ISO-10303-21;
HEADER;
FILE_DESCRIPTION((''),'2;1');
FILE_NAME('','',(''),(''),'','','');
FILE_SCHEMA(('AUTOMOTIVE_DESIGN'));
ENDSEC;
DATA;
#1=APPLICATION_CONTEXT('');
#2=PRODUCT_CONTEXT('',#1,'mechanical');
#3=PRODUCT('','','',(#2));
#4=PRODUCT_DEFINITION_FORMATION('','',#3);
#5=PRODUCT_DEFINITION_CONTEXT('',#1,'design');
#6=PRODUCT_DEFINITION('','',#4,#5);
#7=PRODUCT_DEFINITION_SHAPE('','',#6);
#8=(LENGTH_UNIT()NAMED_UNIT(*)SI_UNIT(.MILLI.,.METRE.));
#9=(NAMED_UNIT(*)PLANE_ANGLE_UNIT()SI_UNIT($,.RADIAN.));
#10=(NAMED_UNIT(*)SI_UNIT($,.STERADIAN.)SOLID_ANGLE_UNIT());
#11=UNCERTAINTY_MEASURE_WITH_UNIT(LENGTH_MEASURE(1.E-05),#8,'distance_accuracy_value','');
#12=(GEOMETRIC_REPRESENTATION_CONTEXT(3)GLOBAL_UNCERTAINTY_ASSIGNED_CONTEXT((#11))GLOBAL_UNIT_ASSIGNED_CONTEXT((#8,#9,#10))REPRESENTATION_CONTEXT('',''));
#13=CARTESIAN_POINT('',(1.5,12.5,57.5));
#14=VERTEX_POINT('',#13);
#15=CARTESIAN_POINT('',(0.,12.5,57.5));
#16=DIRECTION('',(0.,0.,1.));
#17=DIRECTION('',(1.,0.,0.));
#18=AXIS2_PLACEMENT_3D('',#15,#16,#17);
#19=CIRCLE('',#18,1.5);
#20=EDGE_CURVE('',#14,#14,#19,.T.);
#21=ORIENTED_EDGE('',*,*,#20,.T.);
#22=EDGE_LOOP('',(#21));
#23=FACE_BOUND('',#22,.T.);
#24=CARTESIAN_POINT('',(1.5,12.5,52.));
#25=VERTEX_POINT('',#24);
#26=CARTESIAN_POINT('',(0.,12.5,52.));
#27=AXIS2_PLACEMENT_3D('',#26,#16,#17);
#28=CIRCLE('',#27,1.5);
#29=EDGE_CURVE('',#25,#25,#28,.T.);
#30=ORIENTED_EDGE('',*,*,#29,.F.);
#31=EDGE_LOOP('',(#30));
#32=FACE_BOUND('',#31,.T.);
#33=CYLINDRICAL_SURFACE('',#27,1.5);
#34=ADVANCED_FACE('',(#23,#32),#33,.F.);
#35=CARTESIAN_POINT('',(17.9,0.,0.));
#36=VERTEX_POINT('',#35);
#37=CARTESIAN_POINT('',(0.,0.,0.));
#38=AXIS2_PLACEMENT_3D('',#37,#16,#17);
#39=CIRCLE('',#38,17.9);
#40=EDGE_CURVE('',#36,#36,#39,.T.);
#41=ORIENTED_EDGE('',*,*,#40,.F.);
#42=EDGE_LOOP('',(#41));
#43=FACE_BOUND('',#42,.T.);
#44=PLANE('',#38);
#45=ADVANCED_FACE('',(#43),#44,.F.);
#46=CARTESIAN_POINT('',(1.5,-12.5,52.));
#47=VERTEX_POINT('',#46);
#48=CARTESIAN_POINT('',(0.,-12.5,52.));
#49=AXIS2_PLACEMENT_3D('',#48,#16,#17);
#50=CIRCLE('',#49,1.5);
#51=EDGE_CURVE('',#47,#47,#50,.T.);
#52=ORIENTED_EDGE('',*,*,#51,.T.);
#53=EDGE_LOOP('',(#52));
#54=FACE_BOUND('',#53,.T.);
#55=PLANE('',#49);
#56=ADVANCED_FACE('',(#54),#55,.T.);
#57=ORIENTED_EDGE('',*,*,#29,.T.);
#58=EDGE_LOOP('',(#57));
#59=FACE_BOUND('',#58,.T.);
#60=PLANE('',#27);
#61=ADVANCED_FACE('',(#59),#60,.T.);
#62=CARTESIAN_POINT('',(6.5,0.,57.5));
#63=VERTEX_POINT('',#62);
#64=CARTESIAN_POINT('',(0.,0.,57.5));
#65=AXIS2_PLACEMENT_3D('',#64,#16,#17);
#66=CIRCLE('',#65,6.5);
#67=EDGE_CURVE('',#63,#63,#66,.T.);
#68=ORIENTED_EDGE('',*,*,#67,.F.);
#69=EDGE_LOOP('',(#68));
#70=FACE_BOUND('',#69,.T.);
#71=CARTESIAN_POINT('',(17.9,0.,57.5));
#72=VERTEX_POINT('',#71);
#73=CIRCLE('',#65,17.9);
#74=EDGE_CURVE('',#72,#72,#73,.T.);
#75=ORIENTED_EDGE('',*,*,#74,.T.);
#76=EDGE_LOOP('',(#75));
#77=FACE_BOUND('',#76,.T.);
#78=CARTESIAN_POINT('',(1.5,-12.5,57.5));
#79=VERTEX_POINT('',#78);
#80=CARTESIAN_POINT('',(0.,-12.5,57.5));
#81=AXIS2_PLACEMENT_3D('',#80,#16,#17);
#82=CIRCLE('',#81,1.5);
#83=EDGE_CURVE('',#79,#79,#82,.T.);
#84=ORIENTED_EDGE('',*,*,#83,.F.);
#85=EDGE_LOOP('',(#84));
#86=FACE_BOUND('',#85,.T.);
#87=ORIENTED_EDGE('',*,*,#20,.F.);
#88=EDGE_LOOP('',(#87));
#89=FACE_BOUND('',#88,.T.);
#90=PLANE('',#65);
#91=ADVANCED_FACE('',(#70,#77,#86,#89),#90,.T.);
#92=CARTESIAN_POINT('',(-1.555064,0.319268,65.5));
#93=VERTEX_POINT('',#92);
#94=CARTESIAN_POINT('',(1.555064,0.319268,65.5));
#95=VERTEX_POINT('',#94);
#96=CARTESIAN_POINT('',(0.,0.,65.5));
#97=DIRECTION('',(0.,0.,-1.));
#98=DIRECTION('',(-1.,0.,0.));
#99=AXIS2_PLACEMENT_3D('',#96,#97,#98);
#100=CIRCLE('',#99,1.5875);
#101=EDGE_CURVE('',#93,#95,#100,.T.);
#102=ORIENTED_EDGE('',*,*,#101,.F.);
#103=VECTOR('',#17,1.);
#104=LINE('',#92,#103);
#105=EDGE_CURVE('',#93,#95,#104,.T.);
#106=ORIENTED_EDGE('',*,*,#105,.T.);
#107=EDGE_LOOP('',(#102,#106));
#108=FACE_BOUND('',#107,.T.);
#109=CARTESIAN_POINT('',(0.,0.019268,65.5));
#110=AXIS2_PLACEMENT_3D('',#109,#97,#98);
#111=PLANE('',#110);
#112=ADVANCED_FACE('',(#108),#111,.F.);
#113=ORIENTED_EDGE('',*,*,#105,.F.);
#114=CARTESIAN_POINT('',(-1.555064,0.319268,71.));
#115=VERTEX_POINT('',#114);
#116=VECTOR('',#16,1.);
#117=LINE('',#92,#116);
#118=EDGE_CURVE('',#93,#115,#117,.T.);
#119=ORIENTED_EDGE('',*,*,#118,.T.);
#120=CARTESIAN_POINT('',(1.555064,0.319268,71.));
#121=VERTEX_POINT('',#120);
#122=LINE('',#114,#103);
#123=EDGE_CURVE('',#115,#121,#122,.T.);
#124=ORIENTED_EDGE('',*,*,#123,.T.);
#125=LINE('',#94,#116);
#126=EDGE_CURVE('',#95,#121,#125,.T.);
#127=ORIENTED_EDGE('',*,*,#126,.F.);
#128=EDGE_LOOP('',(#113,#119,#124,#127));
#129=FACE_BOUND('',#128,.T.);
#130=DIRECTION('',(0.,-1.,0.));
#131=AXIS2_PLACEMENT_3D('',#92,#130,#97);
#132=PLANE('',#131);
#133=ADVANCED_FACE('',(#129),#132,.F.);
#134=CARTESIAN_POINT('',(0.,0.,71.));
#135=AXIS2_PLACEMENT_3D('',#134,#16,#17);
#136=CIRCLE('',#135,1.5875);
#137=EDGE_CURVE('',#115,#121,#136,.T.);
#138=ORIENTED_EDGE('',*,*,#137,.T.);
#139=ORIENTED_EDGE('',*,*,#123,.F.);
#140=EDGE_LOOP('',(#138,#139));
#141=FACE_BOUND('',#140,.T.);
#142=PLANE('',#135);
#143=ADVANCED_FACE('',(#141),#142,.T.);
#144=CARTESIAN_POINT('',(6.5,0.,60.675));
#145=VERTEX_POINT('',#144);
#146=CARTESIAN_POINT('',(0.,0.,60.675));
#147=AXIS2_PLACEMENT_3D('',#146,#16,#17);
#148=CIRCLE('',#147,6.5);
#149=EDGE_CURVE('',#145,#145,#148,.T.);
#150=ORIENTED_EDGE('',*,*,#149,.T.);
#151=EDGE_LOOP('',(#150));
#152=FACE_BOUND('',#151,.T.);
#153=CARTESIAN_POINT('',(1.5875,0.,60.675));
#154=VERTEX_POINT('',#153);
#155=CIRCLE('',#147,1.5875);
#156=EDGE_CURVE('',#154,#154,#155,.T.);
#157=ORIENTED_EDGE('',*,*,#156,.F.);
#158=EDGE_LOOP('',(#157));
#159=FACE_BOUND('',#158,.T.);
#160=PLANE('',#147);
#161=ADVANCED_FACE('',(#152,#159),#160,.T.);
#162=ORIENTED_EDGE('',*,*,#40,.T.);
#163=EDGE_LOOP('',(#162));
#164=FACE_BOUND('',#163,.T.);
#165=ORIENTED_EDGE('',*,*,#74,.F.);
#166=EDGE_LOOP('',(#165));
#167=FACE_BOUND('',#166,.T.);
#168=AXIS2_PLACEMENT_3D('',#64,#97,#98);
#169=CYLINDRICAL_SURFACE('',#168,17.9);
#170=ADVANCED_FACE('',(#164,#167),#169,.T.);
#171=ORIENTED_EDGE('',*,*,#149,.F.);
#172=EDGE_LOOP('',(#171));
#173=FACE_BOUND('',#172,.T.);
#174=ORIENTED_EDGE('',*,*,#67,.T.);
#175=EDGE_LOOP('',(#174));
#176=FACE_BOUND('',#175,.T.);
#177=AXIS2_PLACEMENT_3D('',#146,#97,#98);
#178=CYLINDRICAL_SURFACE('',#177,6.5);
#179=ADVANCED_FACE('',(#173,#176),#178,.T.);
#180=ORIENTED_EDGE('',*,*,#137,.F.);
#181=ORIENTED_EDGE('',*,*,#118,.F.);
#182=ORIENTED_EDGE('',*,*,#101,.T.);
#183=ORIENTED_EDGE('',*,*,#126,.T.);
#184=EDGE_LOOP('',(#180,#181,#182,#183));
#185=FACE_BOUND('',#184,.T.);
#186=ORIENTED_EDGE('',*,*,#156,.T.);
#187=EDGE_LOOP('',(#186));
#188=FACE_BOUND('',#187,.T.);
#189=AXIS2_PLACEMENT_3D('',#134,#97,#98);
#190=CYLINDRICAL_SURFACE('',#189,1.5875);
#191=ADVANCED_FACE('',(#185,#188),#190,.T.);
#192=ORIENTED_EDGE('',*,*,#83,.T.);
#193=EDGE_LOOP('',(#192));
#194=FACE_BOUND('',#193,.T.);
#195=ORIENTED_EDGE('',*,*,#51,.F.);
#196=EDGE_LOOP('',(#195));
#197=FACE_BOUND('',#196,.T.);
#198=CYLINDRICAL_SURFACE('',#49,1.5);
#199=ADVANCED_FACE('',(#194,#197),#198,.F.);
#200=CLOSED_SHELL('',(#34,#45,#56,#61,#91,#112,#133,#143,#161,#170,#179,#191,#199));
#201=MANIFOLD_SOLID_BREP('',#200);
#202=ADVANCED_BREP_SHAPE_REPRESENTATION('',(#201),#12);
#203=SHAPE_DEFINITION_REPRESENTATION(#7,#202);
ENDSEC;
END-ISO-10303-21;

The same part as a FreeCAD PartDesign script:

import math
import FreeCAD as App
import Part
import Sketcher
from FreeCAD import Vector

doc = App.newDocument("Part")
body = doc.addObject("PartDesign::Body", "Body")

# Sketch on XY plane
sketch1 = body.newObject("Sketcher::SketchObject", "Sketch")
sketch1.AttachmentSupport = (doc.getObject("XY_Plane"), [""])
sketch1.MapMode = "FlatFace"
sketch1.addGeometry(Part.Circle(Vector(0, 0, 0), Vector(0, 0, 1), 18), False)
sketch1.addConstraint([
    Sketcher.Constraint("Coincident", 0, 3, -1, 1),
    Sketcher.Constraint("Diameter", 0, 35.8),
])
pad1 = body.newObject("PartDesign::Pad", "Pad")
pad1.Profile = sketch1
pad1.Length = 57.5

# Sketch on XY plane
sketch2 = body.newObject("Sketcher::SketchObject", "Sketch001")
sketch2.AttachmentSupport = (doc.getObject("XY_Plane"), [""])
sketch2.MapMode = "FlatFace"
sketch2.AttachmentOffset = App.Placement(Vector(0, 0, 57.5), App.Rotation())
sketch2.addGeometry(Part.Circle(Vector(0, 0, 0), Vector(0, 0, 1), 6), False)
sketch2.addConstraint([
    Sketcher.Constraint("Coincident", 0, 3, -1, 1),
    Sketcher.Constraint("Diameter", 0, 13.0),
])
pad2 = body.newObject("PartDesign::Pad", "Pad001")
pad2.Profile = sketch2
pad2.Length = 3.175

# Sketch on XY plane
sketch3 = body.newObject("Sketcher::SketchObject", "Sketch002")
sketch3.AttachmentSupport = (doc.getObject("XY_Plane"), [""])
sketch3.MapMode = "FlatFace"
sketch3.AttachmentOffset = App.Placement(Vector(0, 0, 60.675), App.Rotation())
sketch3.addGeometry(Part.Circle(Vector(0, 0, 0), Vector(0, 0, 1), 1.6), False)
sketch3.addConstraint([
    Sketcher.Constraint("Coincident", 0, 3, -1, 1),
    Sketcher.Constraint("Diameter", 0, 3.175),
])
pad3 = body.newObject("PartDesign::Pad", "Pad002")
pad3.Profile = sketch3
pad3.Length = 10.325

# Sketch on XY plane
sketch4 = body.newObject("Sketcher::SketchObject", "Sketch003")
sketch4.AttachmentSupport = (doc.getObject("XY_Plane"), [""])
sketch4.MapMode = "FlatFace"
sketch4.AttachmentOffset = App.Placement(Vector(0, 0, 71), App.Rotation())
sketch4.addGeometry([
    Part.LineSegment(Vector(-1.6, 0.3, 0), Vector(1.6, 0.3, 0)),
    Part.ArcOfCircle(Part.Circle(Vector(0, 0, 0), Vector(0, 0, 1), 1.6), math.radians(11), math.radians(169)),
], False)
sketch4.addConstraint([
    Sketcher.Constraint("Coincident", 0, 1, 1, 2),
    Sketcher.Constraint("Coincident", 1, 1, 0, 2),
    Sketcher.Constraint("Horizontal", 0),
    Sketcher.Constraint("PointOnObject", 1, 3, -2),
    Sketcher.Constraint("DistanceY", 1, 3, 0, 1, 0.3),
    Sketcher.Constraint("Radius", 1, 1.583737),
    Sketcher.Constraint("DistanceY", -1, 1, 1, 3, 0.019268),
])
pocket1 = body.newObject("PartDesign::Pocket", "Pocket")
pocket1.Profile = sketch4
pocket1.Length = 5.5

# Sketch on XY plane
sketch5 = body.newObject("Sketcher::SketchObject", "Sketch004")
sketch5.AttachmentSupport = (doc.getObject("XY_Plane"), [""])
sketch5.MapMode = "FlatFace"
sketch5.AttachmentOffset = App.Placement(Vector(0, 0, 57.5), App.Rotation())
sketch5.addGeometry([
    Part.Circle(Vector(0, 12.5, 0), Vector(0, 0, 1), 1.5),
    Part.Circle(Vector(0, -12.5, 0), Vector(0, 0, 1), 1.5),
], False)
sketch5.addConstraint([
    Sketcher.Constraint("Equal", 0, 1),
    Sketcher.Constraint("Symmetric", 0, 3, 1, 3, -1, 1),
    Sketcher.Constraint("PointOnObject", 0, 3, -2),
    Sketcher.Constraint("Diameter", 0, 3.0),
    Sketcher.Constraint("DistanceY", 1, 3, 0, 3, 25.0),
])
pocket2 = body.newObject("PartDesign::Pocket", "Pocket001")
pocket2.Profile = sketch5
pocket2.Length = 5.5

doc.recompute()
